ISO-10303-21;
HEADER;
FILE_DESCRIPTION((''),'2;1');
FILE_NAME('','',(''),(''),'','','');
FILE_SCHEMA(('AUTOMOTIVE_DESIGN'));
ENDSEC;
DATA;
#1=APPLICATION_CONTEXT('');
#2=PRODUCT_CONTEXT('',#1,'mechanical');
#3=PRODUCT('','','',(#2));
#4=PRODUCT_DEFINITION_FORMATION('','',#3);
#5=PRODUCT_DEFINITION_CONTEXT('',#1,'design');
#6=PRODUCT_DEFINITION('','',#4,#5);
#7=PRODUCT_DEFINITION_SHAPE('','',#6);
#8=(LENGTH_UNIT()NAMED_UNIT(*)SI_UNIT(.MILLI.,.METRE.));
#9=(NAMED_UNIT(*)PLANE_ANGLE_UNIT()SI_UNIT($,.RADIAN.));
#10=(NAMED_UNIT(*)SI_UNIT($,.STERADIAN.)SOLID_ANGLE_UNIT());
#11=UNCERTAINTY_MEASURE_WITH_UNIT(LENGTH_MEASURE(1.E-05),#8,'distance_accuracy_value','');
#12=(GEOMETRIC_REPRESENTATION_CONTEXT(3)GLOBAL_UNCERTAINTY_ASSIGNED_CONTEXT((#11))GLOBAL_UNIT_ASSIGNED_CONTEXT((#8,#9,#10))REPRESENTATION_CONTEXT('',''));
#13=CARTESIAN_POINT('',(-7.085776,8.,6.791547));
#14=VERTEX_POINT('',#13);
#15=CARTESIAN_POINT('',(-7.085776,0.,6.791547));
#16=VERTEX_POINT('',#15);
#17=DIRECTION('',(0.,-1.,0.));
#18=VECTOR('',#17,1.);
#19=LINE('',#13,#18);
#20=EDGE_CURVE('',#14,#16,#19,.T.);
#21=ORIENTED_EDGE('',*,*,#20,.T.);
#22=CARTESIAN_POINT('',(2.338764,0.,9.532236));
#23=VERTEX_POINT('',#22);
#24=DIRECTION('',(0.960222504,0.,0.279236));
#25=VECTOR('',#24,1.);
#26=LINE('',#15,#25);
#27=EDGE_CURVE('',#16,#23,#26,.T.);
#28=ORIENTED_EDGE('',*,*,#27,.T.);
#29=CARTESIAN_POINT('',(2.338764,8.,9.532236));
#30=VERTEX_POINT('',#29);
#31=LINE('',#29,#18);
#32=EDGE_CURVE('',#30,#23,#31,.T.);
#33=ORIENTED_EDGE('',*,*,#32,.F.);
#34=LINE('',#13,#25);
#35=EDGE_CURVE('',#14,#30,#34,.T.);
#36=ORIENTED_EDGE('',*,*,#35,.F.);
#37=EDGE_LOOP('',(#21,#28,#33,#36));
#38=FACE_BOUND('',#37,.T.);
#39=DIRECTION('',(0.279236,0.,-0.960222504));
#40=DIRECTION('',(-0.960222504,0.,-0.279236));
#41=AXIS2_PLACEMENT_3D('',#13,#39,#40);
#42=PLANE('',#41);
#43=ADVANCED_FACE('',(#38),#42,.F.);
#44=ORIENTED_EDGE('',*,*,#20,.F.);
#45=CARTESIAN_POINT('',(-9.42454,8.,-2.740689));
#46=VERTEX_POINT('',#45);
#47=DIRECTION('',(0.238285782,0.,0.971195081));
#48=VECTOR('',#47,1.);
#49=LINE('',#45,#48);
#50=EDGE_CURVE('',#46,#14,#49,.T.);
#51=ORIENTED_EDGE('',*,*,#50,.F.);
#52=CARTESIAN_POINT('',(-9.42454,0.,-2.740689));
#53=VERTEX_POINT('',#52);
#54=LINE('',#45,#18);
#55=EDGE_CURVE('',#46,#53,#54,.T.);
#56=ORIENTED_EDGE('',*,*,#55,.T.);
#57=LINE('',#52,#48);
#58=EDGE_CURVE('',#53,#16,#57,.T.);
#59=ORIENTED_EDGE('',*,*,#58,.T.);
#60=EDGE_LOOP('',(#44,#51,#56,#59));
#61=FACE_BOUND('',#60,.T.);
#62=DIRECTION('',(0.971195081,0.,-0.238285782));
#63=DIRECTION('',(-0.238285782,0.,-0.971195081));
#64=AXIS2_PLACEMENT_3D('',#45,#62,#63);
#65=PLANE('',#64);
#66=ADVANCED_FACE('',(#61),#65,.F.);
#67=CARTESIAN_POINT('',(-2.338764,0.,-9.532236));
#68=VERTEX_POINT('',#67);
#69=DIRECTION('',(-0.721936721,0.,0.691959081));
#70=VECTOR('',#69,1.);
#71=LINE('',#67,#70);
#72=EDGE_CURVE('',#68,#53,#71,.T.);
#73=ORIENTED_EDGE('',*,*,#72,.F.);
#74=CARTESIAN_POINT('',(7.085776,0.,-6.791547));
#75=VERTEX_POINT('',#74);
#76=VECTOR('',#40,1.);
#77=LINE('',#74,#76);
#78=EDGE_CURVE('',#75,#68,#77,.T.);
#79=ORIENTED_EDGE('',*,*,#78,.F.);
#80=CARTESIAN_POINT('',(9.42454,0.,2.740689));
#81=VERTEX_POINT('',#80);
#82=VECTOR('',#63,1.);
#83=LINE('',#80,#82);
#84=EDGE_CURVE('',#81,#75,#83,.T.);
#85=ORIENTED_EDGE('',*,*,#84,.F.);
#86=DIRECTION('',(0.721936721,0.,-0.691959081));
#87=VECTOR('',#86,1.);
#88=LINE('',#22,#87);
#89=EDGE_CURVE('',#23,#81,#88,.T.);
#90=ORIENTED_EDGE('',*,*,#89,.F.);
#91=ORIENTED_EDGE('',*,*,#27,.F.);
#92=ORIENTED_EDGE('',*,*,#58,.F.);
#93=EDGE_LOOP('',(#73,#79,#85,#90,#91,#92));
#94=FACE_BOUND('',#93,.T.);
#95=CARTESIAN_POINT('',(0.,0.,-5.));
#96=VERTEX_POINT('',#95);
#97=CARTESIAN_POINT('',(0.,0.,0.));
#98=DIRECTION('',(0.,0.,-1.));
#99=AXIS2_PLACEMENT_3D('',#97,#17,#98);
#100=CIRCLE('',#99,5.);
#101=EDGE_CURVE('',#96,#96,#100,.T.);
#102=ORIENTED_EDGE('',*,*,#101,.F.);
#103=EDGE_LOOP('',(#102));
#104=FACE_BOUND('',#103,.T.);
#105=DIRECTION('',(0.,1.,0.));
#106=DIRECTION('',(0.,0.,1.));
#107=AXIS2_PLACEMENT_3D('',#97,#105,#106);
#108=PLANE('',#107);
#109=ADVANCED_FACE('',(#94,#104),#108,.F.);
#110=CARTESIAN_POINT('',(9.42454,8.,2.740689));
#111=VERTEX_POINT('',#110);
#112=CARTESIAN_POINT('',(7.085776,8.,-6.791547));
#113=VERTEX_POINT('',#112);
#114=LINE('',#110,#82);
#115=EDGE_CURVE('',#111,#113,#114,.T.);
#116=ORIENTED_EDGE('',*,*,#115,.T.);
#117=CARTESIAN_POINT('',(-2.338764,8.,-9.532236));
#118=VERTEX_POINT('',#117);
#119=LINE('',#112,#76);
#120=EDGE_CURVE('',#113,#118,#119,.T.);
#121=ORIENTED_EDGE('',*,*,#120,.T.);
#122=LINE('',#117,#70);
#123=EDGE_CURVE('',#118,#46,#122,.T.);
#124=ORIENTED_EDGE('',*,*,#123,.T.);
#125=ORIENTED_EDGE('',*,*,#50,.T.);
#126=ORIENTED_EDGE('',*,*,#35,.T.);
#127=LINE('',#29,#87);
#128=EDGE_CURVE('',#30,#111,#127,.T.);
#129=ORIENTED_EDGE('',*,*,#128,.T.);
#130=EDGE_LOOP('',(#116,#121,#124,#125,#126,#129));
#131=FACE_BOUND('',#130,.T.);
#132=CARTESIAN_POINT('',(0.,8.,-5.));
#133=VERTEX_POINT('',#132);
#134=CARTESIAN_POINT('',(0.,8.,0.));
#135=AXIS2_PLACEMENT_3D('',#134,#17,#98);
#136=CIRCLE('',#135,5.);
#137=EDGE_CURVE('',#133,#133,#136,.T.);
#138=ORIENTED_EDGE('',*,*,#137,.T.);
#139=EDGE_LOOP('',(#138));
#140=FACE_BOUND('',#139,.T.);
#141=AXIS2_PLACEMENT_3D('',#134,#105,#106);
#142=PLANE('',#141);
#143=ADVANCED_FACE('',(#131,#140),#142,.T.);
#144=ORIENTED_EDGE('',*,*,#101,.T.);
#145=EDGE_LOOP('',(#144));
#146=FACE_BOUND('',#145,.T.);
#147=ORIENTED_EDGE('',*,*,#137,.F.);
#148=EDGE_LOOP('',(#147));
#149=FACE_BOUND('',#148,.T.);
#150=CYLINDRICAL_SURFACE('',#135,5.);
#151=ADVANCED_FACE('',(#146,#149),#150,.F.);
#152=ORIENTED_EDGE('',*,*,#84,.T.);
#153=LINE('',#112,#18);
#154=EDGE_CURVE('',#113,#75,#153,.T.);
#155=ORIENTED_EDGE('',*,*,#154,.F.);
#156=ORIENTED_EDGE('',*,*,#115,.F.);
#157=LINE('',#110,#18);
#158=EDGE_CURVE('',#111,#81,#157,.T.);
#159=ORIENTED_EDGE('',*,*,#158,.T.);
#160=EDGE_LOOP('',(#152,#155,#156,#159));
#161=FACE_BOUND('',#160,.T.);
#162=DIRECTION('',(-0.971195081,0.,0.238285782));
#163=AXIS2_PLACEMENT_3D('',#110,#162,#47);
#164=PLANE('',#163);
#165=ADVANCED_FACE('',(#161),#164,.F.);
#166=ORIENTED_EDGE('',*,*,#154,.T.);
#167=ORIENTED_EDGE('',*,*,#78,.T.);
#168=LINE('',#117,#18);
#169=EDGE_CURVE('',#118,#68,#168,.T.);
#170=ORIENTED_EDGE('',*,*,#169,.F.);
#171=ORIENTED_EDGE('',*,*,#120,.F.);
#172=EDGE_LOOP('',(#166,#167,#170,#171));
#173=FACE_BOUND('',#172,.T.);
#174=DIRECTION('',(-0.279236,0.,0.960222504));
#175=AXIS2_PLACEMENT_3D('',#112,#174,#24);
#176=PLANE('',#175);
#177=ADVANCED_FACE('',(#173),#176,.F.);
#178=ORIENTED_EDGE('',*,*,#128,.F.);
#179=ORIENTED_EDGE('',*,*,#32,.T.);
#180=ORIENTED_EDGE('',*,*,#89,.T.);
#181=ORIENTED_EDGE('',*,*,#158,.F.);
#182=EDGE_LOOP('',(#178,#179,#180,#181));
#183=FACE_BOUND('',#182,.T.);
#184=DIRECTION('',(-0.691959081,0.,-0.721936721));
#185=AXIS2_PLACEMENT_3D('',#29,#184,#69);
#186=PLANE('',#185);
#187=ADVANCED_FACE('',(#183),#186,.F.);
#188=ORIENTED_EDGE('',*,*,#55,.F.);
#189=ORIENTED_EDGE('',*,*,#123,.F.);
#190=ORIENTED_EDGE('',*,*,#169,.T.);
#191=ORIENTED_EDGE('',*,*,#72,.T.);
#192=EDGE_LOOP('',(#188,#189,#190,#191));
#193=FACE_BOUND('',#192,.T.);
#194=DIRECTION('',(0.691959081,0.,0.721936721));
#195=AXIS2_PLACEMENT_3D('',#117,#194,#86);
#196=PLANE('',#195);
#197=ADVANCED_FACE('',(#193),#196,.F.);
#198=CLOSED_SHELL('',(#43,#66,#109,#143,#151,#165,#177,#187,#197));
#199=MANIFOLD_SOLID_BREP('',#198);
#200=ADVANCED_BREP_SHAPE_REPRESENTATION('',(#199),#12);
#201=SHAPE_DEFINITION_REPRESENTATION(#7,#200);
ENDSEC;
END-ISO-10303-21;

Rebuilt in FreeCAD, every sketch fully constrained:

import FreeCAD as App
import Part
import Sketcher


def add_polygon(sketch, points):
    """Adds a closed chain of lines whose ends are joined by coincident constraints."""
    first, n = sketch.GeometryCount, len(points)
    for a, b in zip(points, points[1:] + points[:1]):
        sketch.addGeometry(Part.LineSegment(App.Vector(*a, 0), App.Vector(*b, 0)), False)
    for i in range(n):
        sketch.addConstraint(Sketcher.Constraint("Coincident", first + i, 2, first + (i + 1) % n, 1))

doc = App.newDocument("Part")
params = doc.addObject("Spreadsheet::Sheet", "Params")
for row, (alias, value) in enumerate([
    ("pad1_length", "8 mm"),
    ("sketch2_diameter", "10 mm"),
], start=1):
    params.set(f"A{row}", alias)
    params.set(f"B{row}", "=" + value)
    params.setAlias(f"B{row}", alias)

body = doc.addObject("PartDesign::Body", "Body")

# Sketch on XZ plane
sketch1 = body.newObject("Sketcher::SketchObject", "Sketch")
sketch1.AttachmentSupport = (doc.getObject("XZ_Plane"), [""])
sketch1.MapMode = "FlatFace"
add_polygon(sketch1, [(-2.338764, -9.532236), (-9.42454, -2.740689), (-7.085776, 6.791547), (2.338764, 9.532236), (9.42454, 2.740689), (7.085776, -6.791547)])  # lines 0-5
sketch1.addConstraint([
    Sketcher.Constraint("Symmetric", 0, 2, 3, 2, -1, 1),
    Sketcher.Constraint("Symmetric", 1, 2, 4, 2, -1, 1),
    Sketcher.Constraint("Symmetric", 2, 2, 5, 2, -1, 1),
    Sketcher.Constraint("Equal", 0, 1),
    Sketcher.Constraint("Equal", 1, 2),
    Sketcher.Constraint("DistanceX", 0, 2, -1, 1, 9.42454),
    Sketcher.Constraint("DistanceY", 0, 2, -1, 1, 2.740689),
    Sketcher.Constraint("DistanceX", 1, 2, 2, 2, 9.42454),
    Sketcher.Constraint("DistanceY", 1, 2, 2, 2, 2.740689),
])
pad1 = body.newObject("PartDesign::Pad", "Pad")
pad1.Profile = sketch1
pad1.setExpression("Length", "Params.pad1_length")
pad1.Reversed = True

# Sketch on XZ plane
sketch2 = body.newObject("Sketcher::SketchObject", "Sketch001")
sketch2.AttachmentSupport = (doc.getObject("XZ_Plane"), [""])
sketch2.MapMode = "FlatFace"
sketch2.addGeometry(Part.Circle(App.Vector(0, 0, 0), App.Vector(0, 0, 1), 5), False)
sketch2.addConstraint([
    Sketcher.Constraint("Coincident", 0, 3, -1, 1),
    Sketcher.Constraint("Diameter", 0, 10.0),
])
sketch2.setExpression("Constraints[1]", "Params.sketch2_diameter")
pocket1 = body.newObject("PartDesign::Pocket", "Pocket")
pocket1.Profile = sketch2
pocket1.Type = "ThroughAll"

doc.recompute()
